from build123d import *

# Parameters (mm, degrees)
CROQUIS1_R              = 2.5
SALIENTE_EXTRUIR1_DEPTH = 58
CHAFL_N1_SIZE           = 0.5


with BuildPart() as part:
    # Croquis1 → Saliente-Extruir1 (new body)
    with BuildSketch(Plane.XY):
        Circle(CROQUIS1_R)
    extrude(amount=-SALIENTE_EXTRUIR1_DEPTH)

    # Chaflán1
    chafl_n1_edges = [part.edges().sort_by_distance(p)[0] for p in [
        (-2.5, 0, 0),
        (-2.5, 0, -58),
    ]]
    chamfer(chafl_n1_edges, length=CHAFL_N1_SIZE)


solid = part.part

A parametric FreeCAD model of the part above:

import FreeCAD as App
import Part
import Sketcher
from FreeCAD import Vector
Q = App.Units.Quantity


def edges_at(feature, points):
    """Names of the edges that pass closest to the given points."""
    edges = feature.Shape.Edges
    near = lambda p: min(range(len(edges)), key=lambda i: edges[i].distToShape(Part.Vertex(*p))[0])
    return sorted({f"Edge{near(p) + 1}" for p in points})

doc = App.newDocument("Part")
body = doc.addObject("PartDesign::Body", "Body")

sketch1 = body.newObject("Sketcher::SketchObject", "Sketch")
sketch1.AttachmentSupport = (doc.getObject("XY_Plane"), [""])
sketch1.MapMode = "FlatFace"
sketch1.addGeometry(Part.Circle(Vector(0, 0, 0), Vector(0, 0, 1), 2.5), False)
sketch1.addConstraint([
    Sketcher.Constraint("Coincident", 0, 3, -1, 1),
    Sketcher.Constraint("Diameter", 0, Q("5 mm")),
])
pad1 = body.newObject("PartDesign::Pad", "Pad")
pad1.Profile = sketch1
pad1.Length = 58
pad1.Reversed = True
doc.recompute()

chamfer = body.newObject("PartDesign::Chamfer", "Chamfer")
chamfer.Base = (pad1, edges_at(pad1, [(-2.5, 0, 0), (-2.5, 0, -58)]))
chamfer.Size = 0.5

doc.recompute()
